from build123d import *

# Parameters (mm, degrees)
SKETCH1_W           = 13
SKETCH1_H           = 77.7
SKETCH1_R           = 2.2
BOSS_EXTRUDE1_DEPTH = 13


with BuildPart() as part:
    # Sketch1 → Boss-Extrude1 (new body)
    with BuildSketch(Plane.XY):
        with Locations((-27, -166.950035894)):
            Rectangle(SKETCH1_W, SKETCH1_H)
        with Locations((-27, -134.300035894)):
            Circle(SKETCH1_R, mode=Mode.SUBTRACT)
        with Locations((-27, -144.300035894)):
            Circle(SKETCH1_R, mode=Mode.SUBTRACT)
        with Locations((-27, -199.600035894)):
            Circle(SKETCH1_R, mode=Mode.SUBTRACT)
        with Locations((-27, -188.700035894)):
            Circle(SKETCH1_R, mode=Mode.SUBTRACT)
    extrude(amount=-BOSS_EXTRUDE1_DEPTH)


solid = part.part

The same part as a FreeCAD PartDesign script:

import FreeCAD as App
import Part
import Sketcher

V = App.Vector


def add_polygon(sketch, points):
    """Adds a closed chain of lines whose ends are joined by coincident constraints."""
    first, n = sketch.GeometryCount, len(points)
    for a, b in zip(points, points[1:] + points[:1]):
        sketch.addGeometry(Part.LineSegment(App.Vector(*a, 0), App.Vector(*b, 0)), False)
    for i in range(n):
        sketch.addConstraint(Sketcher.Constraint("Coincident", first + i, 2, first + (i + 1) % n, 1))

doc = App.newDocument("Part")
body = doc.addObject("PartDesign::Body", "Body")

sketch1 = body.newObject("Sketcher::SketchObject", "Sketch")
sketch1.AttachmentSupport = (doc.getObject("XY_Plane"), [""])
sketch1.MapMode = "FlatFace"
add_polygon(sketch1, [(-33.5, -128.100036), (-33.5, -205.800036), (-20.5, -205.800036), (-20.5, -128.100036)])
sketch1.addGeometry(Part.Circle(V(-27, -199.600036, 0), V(0, 0, 1), 2.2), False)
sketch1.addGeometry(Part.Circle(V(-27, -188.700036, 0), V(0, 0, 1), 2.2), False)
sketch1.addGeometry(Part.Circle(V(-27, -144.300036, 0), V(0, 0, 1), 2.2), False)
sketch1.addGeometry(Part.Circle(V(-27, -134.300036, 0), V(0, 0, 1), 2.2), False)
sketch1.addConstraint([
    Sketcher.Constraint("Vertical", 0),
    Sketcher.Constraint("Horizontal", 1),
    Sketcher.Constraint("Vertical", 2),
    Sketcher.Constraint("Horizontal", 3),
    Sketcher.Constraint("Equal", 4, 5),
    Sketcher.Constraint("Equal", 5, 6),
    Sketcher.Constraint("Equal", 6, 7),
    Sketcher.Constraint("Vertical", 4, 3, 5, 3),
    Sketcher.Constraint("Vertical", 5, 3, 6, 3),
    Sketcher.Constraint("Vertical", 6, 3, 7, 3),
    Sketcher.Constraint("Diameter", 4, 4.4),
    Sketcher.Constraint("DistanceX", 1, 1, 1, 2, 13.0),
    Sketcher.Constraint("DistanceY", 0, 2, 0, 1, 77.7),
    Sketcher.Constraint("DistanceX", 4, 3, -1, 1, 27.0),
    Sketcher.Constraint("DistanceY", 6, 3, 7, 3, 10.0),
    Sketcher.Constraint("DistanceX", 0, 2, -1, 1, 33.5),
    Sketcher.Constraint("DistanceY", 4, 3, 5, 3, 10.9),
    Sketcher.Constraint("DistanceY", 5, 3, 6, 3, 44.4),
    Sketcher.Constraint("DistanceY", 0, 2, 4, 3, 6.2),
    Sketcher.Constraint("DistanceY", 4, 3, -1, 1, 199.600036),
])
pad1 = body.newObject("PartDesign::Pad", "Pad")
pad1.Profile = sketch1
pad1.Length = 13
pad1.Reversed = True

doc.recompute()
